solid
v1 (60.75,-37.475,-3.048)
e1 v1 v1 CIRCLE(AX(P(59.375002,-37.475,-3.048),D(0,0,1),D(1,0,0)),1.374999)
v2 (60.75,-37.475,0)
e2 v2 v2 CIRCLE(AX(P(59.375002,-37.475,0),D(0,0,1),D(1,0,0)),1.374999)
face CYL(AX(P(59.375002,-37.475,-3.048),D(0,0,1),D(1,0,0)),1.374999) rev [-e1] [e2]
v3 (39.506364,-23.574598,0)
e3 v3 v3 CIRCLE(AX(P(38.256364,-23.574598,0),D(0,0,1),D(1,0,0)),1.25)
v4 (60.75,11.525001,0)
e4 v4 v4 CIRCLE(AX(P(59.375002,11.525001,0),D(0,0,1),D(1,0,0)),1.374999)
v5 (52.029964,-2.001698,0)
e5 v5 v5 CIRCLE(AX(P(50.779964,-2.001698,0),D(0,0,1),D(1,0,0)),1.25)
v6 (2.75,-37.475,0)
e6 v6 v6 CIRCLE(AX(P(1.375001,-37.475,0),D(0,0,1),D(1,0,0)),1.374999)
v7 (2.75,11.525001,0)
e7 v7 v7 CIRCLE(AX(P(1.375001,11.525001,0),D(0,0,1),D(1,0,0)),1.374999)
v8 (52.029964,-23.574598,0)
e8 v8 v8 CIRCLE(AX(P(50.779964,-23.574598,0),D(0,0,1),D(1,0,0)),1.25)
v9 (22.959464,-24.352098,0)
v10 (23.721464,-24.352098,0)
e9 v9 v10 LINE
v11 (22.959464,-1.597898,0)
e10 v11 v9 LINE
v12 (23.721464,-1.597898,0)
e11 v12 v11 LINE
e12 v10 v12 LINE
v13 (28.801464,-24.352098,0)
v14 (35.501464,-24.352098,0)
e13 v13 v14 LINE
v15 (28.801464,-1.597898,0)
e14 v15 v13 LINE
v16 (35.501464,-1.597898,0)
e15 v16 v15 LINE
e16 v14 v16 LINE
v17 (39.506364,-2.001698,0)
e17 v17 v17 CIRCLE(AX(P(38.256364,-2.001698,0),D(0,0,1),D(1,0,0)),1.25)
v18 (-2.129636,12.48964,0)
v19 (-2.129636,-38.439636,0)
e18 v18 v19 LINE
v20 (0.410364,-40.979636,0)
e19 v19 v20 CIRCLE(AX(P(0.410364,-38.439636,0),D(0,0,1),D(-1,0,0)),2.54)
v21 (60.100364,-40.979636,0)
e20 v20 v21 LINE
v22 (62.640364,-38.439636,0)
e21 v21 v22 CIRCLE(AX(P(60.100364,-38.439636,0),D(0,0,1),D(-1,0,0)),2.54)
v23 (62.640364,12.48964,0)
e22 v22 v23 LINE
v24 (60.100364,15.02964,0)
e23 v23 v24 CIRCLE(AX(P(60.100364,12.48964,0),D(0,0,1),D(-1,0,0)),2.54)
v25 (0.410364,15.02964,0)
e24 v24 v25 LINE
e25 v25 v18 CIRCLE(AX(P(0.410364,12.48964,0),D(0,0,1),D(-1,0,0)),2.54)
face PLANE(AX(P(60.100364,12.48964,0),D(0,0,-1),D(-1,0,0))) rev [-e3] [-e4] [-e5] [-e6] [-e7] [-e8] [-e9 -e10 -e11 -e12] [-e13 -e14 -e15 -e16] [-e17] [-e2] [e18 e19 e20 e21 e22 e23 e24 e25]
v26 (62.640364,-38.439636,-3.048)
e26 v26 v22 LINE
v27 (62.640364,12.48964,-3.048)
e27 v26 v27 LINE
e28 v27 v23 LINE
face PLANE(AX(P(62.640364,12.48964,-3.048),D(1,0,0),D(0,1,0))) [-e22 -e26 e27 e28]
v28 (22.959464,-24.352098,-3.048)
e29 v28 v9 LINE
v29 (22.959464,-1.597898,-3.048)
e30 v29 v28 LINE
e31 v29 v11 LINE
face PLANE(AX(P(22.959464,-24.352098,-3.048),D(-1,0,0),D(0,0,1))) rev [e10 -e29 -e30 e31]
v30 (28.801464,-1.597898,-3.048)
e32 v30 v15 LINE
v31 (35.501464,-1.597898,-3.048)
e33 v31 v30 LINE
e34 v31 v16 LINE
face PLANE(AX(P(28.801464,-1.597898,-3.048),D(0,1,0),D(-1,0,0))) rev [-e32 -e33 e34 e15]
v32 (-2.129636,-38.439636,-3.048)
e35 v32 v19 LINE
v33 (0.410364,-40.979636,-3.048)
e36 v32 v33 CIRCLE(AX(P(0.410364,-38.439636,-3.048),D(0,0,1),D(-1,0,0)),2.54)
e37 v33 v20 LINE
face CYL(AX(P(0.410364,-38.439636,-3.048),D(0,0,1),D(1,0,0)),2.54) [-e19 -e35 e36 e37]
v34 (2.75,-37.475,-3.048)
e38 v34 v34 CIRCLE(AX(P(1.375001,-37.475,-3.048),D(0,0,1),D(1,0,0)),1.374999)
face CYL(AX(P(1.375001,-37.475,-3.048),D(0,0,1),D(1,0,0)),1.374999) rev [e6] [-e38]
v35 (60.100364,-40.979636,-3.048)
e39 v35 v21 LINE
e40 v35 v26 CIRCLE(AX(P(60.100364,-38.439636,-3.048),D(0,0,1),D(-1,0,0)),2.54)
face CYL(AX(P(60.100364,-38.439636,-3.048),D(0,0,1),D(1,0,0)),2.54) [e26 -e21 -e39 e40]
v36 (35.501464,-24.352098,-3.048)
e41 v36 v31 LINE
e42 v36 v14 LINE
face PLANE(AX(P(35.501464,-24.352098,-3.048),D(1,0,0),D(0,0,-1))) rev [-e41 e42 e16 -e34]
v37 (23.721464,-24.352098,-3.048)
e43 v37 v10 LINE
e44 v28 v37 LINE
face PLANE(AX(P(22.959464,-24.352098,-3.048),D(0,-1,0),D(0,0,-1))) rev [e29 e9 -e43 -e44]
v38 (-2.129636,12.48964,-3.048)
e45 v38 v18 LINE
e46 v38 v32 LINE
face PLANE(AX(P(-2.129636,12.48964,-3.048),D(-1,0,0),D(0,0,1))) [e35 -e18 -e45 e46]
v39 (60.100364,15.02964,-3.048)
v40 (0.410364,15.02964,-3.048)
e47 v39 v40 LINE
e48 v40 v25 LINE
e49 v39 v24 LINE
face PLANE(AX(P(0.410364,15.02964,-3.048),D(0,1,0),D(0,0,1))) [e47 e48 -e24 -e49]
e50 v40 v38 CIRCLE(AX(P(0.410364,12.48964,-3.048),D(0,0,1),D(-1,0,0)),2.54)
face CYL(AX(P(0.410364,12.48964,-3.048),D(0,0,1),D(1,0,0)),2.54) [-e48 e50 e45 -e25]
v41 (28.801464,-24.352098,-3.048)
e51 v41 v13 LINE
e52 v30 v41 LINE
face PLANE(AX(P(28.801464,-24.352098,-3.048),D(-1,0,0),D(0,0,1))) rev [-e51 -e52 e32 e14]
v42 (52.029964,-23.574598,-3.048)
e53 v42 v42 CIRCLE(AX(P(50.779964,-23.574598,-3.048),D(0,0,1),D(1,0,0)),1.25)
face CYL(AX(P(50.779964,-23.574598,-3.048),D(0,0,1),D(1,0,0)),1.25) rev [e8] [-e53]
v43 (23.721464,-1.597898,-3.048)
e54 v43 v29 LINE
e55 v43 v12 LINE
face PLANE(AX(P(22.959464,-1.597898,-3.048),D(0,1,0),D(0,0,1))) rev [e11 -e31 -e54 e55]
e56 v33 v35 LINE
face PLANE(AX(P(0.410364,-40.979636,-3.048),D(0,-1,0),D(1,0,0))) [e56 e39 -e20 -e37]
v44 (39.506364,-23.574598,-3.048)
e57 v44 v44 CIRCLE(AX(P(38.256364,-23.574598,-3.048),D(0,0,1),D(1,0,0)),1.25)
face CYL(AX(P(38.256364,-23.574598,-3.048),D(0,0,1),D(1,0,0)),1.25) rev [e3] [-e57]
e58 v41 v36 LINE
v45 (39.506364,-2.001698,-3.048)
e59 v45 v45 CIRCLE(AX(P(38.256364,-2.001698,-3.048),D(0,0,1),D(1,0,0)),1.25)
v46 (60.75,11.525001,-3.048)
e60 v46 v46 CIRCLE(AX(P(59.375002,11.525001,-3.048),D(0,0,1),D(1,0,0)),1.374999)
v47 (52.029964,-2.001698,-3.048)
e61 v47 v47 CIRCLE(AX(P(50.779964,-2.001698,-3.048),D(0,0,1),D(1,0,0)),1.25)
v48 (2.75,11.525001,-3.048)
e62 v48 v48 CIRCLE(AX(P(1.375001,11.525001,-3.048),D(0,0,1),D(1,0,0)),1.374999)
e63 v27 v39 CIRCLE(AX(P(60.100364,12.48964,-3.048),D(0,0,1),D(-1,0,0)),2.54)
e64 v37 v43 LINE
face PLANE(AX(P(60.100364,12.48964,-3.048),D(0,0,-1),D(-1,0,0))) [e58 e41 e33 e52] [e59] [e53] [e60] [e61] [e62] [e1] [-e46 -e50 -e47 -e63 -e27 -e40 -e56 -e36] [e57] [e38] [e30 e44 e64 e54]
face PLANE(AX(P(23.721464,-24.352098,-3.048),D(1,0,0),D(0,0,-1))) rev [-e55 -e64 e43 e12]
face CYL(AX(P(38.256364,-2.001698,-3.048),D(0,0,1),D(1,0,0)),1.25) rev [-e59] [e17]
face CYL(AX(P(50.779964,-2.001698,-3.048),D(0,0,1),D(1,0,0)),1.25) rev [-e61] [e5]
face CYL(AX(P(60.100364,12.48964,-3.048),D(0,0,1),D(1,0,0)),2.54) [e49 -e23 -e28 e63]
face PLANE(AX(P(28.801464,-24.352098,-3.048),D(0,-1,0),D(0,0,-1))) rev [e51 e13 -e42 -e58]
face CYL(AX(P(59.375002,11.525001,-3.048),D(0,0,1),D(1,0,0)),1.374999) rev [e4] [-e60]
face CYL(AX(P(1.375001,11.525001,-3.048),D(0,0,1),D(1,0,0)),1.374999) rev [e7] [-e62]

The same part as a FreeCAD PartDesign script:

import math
import FreeCAD as App
import Part
import Sketcher
Q = App.Units.Quantity


def add_polygon(sketch, points):
    """Adds a closed chain of lines whose ends are joined by coincident constraints."""
    first, n = sketch.GeometryCount, len(points)
    for a, b in zip(points, points[1:] + points[:1]):
        sketch.addGeometry(Part.LineSegment(App.Vector(*a, 0), App.Vector(*b, 0)), False)
    for i in range(n):
        sketch.addConstraint(Sketcher.Constraint("Coincident", first + i, 2, first + (i + 1) % n, 1))

doc = App.newDocument("Part")
params = doc.addObject("Spreadsheet::Sheet", "Params")
for row, (alias, value) in enumerate([
    ("sketch1_radius", "0.1 in"),
    ("sketch1_width", "2.35 in"),
    ("pad1_length", "0.12 in"),
    ("sketch2_width", "0.03 in"),
], start=1):
    params.set(f"A{row}", alias)
    params.set(f"B{row}", "=" + value)
    params.setAlias(f"B{row}", alias)

body = doc.addObject("PartDesign::Body", "Body")

sketch1 = body.newObject("Sketcher::SketchObject", "Sketch")
sketch1.AttachmentSupport = (doc.getObject("XY_Plane"), [""])
sketch1.MapMode = "FlatFace"
sketch1.addGeometry([
    Part.LineSegment(App.Vector(60.1, 15, 0), App.Vector(0.4, 15, 0)),
    Part.ArcOfCircle(Part.Circle(App.Vector(0.4, 12.5, 0), App.Vector(0, 0, 1), 2.5), math.radians(90), math.radians(180)),
    Part.LineSegment(App.Vector(-2.1, 12.5, 0), App.Vector(-2.1, -38.4, 0)),
    Part.ArcOfCircle(Part.Circle(App.Vector(0.4, -38.4, 0), App.Vector(0, 0, 1), 2.5), math.radians(-180), math.radians(-90)),
    Part.LineSegment(App.Vector(0.4, -41, 0), App.Vector(60.1, -41, 0)),
    Part.ArcOfCircle(Part.Circle(App.Vector(60.1, -38.4, 0), App.Vector(0, 0, 1), 2.5), math.radians(-90), math.radians(0)),
    Part.LineSegment(App.Vector(62.6, -38.4, 0), App.Vector(62.6, 12.5, 0)),
    Part.ArcOfCircle(Part.Circle(App.Vector(60.1, 12.5, 0), App.Vector(0, 0, 1), 2.5), math.radians(0), math.radians(90)),
    Part.Circle(App.Vector(59.4, -37.5, 0), App.Vector(0, 0, 1), 1.4),
    Part.Circle(App.Vector(1.4, -37.5, 0), App.Vector(0, 0, 1), 1.4),
    Part.Circle(App.Vector(59.4, 11.5, 0), App.Vector(0, 0, 1), 1.4),
    Part.Circle(App.Vector(1.4, 11.5, 0), App.Vector(0, 0, 1), 1.4),
], False)
sketch1.addConstraint([
    Sketcher.Constraint("Tangent", 0, 2, 1, 1),
    Sketcher.Constraint("Tangent", 1, 2, 2, 1),
    Sketcher.Constraint("Tangent", 2, 2, 3, 1),
    Sketcher.Constraint("Tangent", 3, 2, 4, 1),
    Sketcher.Constraint("Tangent", 4, 2, 5, 1),
    Sketcher.Constraint("Tangent", 5, 2, 6, 1),
    Sketcher.Constraint("Tangent", 6, 2, 7, 1),
    Sketcher.Constraint("Tangent", 7, 2, 0, 1),
    Sketcher.Constraint("Horizontal", 0),
    Sketcher.Constraint("Vertical", 2),
    Sketcher.Constraint("Horizontal", 4),
    Sketcher.Constraint("Vertical", 6),
    Sketcher.Constraint("Equal", 1, 3),
    Sketcher.Constraint("Equal", 3, 5),
    Sketcher.Constraint("Equal", 5, 7),
    Sketcher.Constraint("Equal", 8, 9),
    Sketcher.Constraint("Equal", 9, 10),
    Sketcher.Constraint("Equal", 10, 11),
    Sketcher.Constraint("Horizontal", 8, 3, 9, 3),
    Sketcher.Constraint("Horizontal", 10, 3, 11, 3),
    Sketcher.Constraint("Vertical", 8, 3, 10, 3),
    Sketcher.Constraint("Vertical", 9, 3, 11, 3),
    Sketcher.Constraint("Radius", 1, Q("0.1 in")),
    Sketcher.Constraint("DistanceX", 0, 2, 0, 1, Q("2.35 in")),
    Sketcher.Constraint("Diameter", 8, Q("2.749997 mm")),
    Sketcher.Constraint("DistanceX", -1, 1, 8, 3, Q("59.375002 mm")),
    Sketcher.Constraint("DistanceY", 8, 3, -1, 1, Q("37.475 mm")),
    Sketcher.Constraint("DistanceX", -1, 1, 9, 3, Q("1.375001 mm")),
    Sketcher.Constraint("DistanceY", -1, 1, 10, 3, Q("11.525001 mm")),
    Sketcher.Constraint("DistanceY", 2, 2, 2, 1, Q("50.929276 mm")),
    Sketcher.Constraint("DistanceY", -1, 1, 1, 3, Q("12.48964 mm")),
    Sketcher.Constraint("DistanceX", 8, 3, 5, 3, Q("0.725362 mm")),
])
sketch1.setExpression("Constraints[22]", "Params.sketch1_radius")
sketch1.setExpression("Constraints[23]", "Params.sketch1_width")
pad1 = body.newObject("PartDesign::Pad", "Pad")
pad1.Profile = sketch1
pad1.setExpression("Length", "Params.pad1_length")
pad1.Reversed = True

sketch2 = body.newObject("Sketcher::SketchObject", "Sketch001")
sketch2.AttachmentSupport = (doc.getObject("XY_Plane"), [""])
sketch2.MapMode = "FlatFace"
sketch2.addGeometry(Part.Circle(App.Vector(38.3, -2, 0), App.Vector(0, 0, 1), 1.2), False)
sketch2.addGeometry(Part.Circle(App.Vector(50.8, -2, 0), App.Vector(0, 0, 1), 1.2), False)
sketch2.addGeometry(Part.Circle(App.Vector(50.8, -23.6, 0), App.Vector(0, 0, 1), 1.2), False)
sketch2.addGeometry(Part.Circle(App.Vector(38.3, -23.6, 0), App.Vector(0, 0, 1), 1.2), False)
add_polygon(sketch2, [(28.8, -1.6), (28.8, -24.4), (35.5, -24.4), (35.5, -1.6)])
add_polygon(sketch2, [(23, -1.6), (23, -24.4), (23.7, -24.4), (23.7, -1.6)])
sketch2.addConstraint([
    Sketcher.Constraint("Vertical", 4),
    Sketcher.Constraint("Horizontal", 5),
    Sketcher.Constraint("Vertical", 6),
    Sketcher.Constraint("Horizontal", 7),
    Sketcher.Constraint("Vertical", 8),
    Sketcher.Constraint("Horizontal", 9),
    Sketcher.Constraint("Vertical", 10),
    Sketcher.Constraint("Horizontal", 11),
    Sketcher.Constraint("Equal", 0, 1),
    Sketcher.Constraint("Equal", 1, 2),
    Sketcher.Constraint("Equal", 2, 3),
    Sketcher.Constraint("Horizontal", 0, 3, 1, 3),
    Sketcher.Constraint("Horizontal", 2, 3, 3, 3),
    Sketcher.Constraint("Horizontal", 5, 2, 8, 2),
    Sketcher.Constraint("Horizontal", 7, 2, 10, 2),
    Sketcher.Constraint("Vertical", 1, 3, 2, 3),
    Sketcher.Constraint("Vertical", 0, 3, 3, 3),
    Sketcher.Constraint("DistanceX", 9, 1, 9, 2, Q("0.03 in")),
    Sketcher.Constraint("DistanceX", 9, 2, 4, 2, Q("0.2 in")),
    Sketcher.Constraint("Diameter", 0, Q("2.5 mm")),
    Sketcher.Constraint("DistanceX", 5, 1, 5, 2, Q("6.7 mm")),
    Sketcher.Constraint("DistanceY", 4, 2, 4, 1, Q("22.7542 mm")),
    Sketcher.Constraint("DistanceY", 0, 3, -1, 1, Q("2.001698 mm")),
    Sketcher.Constraint("DistanceY", 2, 3, -1, 1, Q("23.574598 mm")),
    Sketcher.Constraint("DistanceY", 4, 2, -1, 1, Q("24.352098 mm")),
    Sketcher.Constraint("DistanceX", 0, 3, 1, 3, Q("12.5236 mm")),
    Sketcher.Constraint("DistanceX", 4, 2, 3, 3, Q("9.4549 mm")),
    Sketcher.Constraint("DistanceX", -1, 1, 0, 3, Q("38.256364 mm")),
])
sketch2.setExpression("Constraints[25]", "Params.sketch2_width")
pocket1 = body.newObject("PartDesign::Pocket", "Pocket")
pocket1.Profile = sketch2
pocket1.Type = "ThroughAll"

doc.recompute()
